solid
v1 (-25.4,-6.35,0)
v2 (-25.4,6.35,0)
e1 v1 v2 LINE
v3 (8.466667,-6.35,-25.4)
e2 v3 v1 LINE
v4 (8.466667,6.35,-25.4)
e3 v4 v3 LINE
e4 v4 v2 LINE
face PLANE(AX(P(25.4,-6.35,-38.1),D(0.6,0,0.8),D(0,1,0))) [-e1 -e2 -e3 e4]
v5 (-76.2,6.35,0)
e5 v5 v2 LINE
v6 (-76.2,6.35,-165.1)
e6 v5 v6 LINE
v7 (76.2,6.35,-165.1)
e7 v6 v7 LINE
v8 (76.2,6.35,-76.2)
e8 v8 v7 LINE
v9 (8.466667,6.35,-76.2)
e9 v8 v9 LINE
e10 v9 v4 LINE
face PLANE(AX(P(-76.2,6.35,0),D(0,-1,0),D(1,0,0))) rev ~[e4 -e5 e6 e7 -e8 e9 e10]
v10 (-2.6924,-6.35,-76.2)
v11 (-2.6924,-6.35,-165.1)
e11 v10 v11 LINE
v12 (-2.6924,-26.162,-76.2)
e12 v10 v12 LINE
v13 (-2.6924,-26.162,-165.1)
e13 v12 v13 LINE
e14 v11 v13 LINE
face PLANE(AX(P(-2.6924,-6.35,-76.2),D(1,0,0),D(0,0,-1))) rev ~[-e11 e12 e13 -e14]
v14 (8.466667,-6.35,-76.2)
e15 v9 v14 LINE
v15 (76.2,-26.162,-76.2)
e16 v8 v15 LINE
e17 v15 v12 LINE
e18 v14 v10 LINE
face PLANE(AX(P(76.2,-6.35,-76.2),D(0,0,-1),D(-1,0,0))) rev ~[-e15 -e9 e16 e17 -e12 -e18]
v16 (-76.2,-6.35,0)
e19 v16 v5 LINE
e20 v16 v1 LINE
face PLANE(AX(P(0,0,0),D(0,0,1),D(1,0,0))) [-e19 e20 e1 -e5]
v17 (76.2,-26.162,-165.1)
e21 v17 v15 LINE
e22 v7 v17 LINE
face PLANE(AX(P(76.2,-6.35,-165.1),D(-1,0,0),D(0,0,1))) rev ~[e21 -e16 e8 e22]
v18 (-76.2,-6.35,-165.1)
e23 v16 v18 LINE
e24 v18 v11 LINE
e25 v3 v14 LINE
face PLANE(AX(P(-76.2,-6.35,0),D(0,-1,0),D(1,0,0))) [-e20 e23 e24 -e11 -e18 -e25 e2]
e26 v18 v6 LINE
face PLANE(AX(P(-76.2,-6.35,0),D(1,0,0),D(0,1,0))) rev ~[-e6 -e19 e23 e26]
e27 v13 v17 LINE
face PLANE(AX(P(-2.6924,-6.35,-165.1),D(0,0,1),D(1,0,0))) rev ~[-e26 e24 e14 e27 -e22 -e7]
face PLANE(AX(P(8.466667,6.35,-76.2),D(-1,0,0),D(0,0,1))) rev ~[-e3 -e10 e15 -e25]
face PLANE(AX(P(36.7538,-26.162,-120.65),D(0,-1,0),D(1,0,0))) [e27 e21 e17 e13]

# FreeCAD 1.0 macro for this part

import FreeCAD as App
import Part
import Sketcher
Q = App.Units.Quantity


def edges_at(feature, points):
    """Names of the edges that pass closest to the given points."""
    edges = feature.Shape.Edges
    near = lambda p: min(range(len(edges)), key=lambda i: edges[i].distToShape(Part.Vertex(*p))[0])
    return sorted({f"Edge{near(p) + 1}" for p in points})


def add_polygon(sketch, points):
    """Adds a closed chain of lines whose ends are joined by coincident constraints."""
    first, n = sketch.GeometryCount, len(points)
    for a, b in zip(points, points[1:] + points[:1]):
        sketch.addGeometry(Part.LineSegment(App.Vector(*a, 0), App.Vector(*b, 0)), False)
    for i in range(n):
        sketch.addConstraint(Sketcher.Constraint("Coincident", first + i, 2, first + (i + 1) % n, 1))

doc = App.newDocument("Part")
params = doc.addObject("Spreadsheet::Sheet", "Params")
for row, (alias, value) in enumerate([
    ("sketch1_width", "6 in"),
    ("sketch1_height", "0.5 in"),
    ("pad1_length", "6.5 in"),
    ("chamfer_size", "3 in"),
    ("chamfer_size2", "4 in"),
    ("sketch2_height", "3.5 in"),
    ("sketch2_width", "3.106 in"),
    ("pad2_length", "0.78 in"),
    ("sketch3_height", "2 in"),
    ("pocket1_length", "1 in"),
], start=1):
    params.set(f"A{row}", alias)
    params.set(f"B{row}", "=" + value)
    params.setAlias(f"B{row}", alias)

body = doc.addObject("PartDesign::Body", "Body")

# Sketch on XY plane
sketch1 = doc.addObject("Sketcher::SketchObject", "Sketch")
body.addObject(sketch1)
sketch1.AttachmentSupport = (doc.XY_Plane, [""])
sketch1.MapMode = "FlatFace"
add_polygon(sketch1, [(-76.2, 6.35), (-76.2, -6.35), (76.2, -6.35), (76.2, 6.35)])  # lines 0-3
sketch1.addConstraint([
    Sketcher.Constraint("Vertical", 0),
    Sketcher.Constraint("Horizontal", 1),
    Sketcher.Constraint("Vertical", 2),
    Sketcher.Constraint("Horizontal", 3),
    Sketcher.Constraint("Symmetric", 0, 2, 2, 2, -1, 1),
    Sketcher.Constraint("DistanceX", 1, 1, 1, 2, Q("6 in")),
    Sketcher.Constraint("DistanceY", 0, 2, 0, 1, Q("0.5 in")),
])
sketch1.setExpression("Constraints[9]", "Params.sketch1_width")
sketch1.setExpression("Constraints[10]", "Params.sketch1_height")
pad1 = doc.addObject("PartDesign::Pad", "Pad")
body.addObject(pad1)
pad1.Profile = sketch1
pad1.setExpression("Length", "Params.pad1_length")
pad1.Reversed = True
doc.recompute()

chamfer = doc.addObject("PartDesign::Chamfer", "Chamfer")
body.addObject(chamfer)
chamfer.Base = (pad1, edges_at(pad1, [(76.2, 0, 0)]))
chamfer.ChamferType = "Two distances"
chamfer.setExpression("Size", "Params.chamfer_size")
chamfer.setExpression("Size2", "Params.chamfer_size2")

# Sketch on XZ plane
sketch2 = doc.addObject("Sketcher::SketchObject", "Sketch001")
body.addObject(sketch2)
sketch2.AttachmentSupport = (doc.XZ_Plane, [""])
sketch2.MapMode = "FlatFace"
sketch2.AttachmentOffset = App.Placement(App.Vector(0, 0, 0.25 * 25.4), App.Rotation())
add_polygon(sketch2, [(-2.6924, -165.1), (76.2, -165.1), (76.2, -76.2), (-2.6924, -76.2)])  # lines 0-3
sketch2.addConstraint([
    Sketcher.Constraint("Horizontal", 0),
    Sketcher.Constraint("Vertical", 1),
    Sketcher.Constraint("Horizontal", 2),
    Sketcher.Constraint("Vertical", 3),
    Sketcher.Constraint("DistanceY", 1, 1, 1, 2, Q("3.5 in")),
    Sketcher.Constraint("DistanceX", -1, 1, 0, 2, Q("3 in")),
    Sketcher.Constraint("DistanceY", 1, 2, -1, 1, Q("3 in")),
    Sketcher.Constraint("DistanceX", 0, 1, 0, 2, Q("3.106 in")),
])
sketch2.setExpression("Constraints[8]", "Params.sketch2_height")
sketch2.setExpression("Constraints[11]", "Params.sketch2_width")
pad2 = doc.addObject("PartDesign::Pad", "Pad001")
body.addObject(pad2)
pad2.Profile = sketch2
pad2.setExpression("Length", "Params.pad2_length")

# Sketch on XZ plane
sketch3 = doc.addObject("Sketcher::SketchObject", "Sketch002")
body.addObject(sketch3)
sketch3.AttachmentSupport = (doc.XZ_Plane, [""])
sketch3.MapMode = "FlatFace"
sketch3.AttachmentOffset = App.Placement(App.Vector(0, 0, -0.25 * 25.4), App.Rotation())
add_polygon(sketch3, [(8.466667, -25.4), (76.2, -76.2), (8.466667, -76.2)])  # lines 0-2
sketch3.addConstraint([
    Sketcher.Constraint("Horizontal", 1),
    Sketcher.Constraint("Vertical", 2),
    Sketcher.Constraint("DistanceY", 2, 1, 2, 2, Q("2 in")),
    Sketcher.Constraint("DistanceX", -1, 1, 0, 2, Q("3 in")),
    Sketcher.Constraint("DistanceY", 0, 2, -1, 1, Q("3 in")),
    Sketcher.Constraint("DistanceX", 1, 2, 1, 1, Q("67.733333 mm")),
])
sketch3.setExpression("Constraints[5]", "Params.sketch3_height")
pocket1 = doc.addObject("PartDesign::Pocket", "Pocket")
body.addObject(pocket1)
pocket1.Profile = sketch3
pocket1.setExpression("Length", "Params.pocket1_length")
pocket1.Reversed = True

doc.recompute()
